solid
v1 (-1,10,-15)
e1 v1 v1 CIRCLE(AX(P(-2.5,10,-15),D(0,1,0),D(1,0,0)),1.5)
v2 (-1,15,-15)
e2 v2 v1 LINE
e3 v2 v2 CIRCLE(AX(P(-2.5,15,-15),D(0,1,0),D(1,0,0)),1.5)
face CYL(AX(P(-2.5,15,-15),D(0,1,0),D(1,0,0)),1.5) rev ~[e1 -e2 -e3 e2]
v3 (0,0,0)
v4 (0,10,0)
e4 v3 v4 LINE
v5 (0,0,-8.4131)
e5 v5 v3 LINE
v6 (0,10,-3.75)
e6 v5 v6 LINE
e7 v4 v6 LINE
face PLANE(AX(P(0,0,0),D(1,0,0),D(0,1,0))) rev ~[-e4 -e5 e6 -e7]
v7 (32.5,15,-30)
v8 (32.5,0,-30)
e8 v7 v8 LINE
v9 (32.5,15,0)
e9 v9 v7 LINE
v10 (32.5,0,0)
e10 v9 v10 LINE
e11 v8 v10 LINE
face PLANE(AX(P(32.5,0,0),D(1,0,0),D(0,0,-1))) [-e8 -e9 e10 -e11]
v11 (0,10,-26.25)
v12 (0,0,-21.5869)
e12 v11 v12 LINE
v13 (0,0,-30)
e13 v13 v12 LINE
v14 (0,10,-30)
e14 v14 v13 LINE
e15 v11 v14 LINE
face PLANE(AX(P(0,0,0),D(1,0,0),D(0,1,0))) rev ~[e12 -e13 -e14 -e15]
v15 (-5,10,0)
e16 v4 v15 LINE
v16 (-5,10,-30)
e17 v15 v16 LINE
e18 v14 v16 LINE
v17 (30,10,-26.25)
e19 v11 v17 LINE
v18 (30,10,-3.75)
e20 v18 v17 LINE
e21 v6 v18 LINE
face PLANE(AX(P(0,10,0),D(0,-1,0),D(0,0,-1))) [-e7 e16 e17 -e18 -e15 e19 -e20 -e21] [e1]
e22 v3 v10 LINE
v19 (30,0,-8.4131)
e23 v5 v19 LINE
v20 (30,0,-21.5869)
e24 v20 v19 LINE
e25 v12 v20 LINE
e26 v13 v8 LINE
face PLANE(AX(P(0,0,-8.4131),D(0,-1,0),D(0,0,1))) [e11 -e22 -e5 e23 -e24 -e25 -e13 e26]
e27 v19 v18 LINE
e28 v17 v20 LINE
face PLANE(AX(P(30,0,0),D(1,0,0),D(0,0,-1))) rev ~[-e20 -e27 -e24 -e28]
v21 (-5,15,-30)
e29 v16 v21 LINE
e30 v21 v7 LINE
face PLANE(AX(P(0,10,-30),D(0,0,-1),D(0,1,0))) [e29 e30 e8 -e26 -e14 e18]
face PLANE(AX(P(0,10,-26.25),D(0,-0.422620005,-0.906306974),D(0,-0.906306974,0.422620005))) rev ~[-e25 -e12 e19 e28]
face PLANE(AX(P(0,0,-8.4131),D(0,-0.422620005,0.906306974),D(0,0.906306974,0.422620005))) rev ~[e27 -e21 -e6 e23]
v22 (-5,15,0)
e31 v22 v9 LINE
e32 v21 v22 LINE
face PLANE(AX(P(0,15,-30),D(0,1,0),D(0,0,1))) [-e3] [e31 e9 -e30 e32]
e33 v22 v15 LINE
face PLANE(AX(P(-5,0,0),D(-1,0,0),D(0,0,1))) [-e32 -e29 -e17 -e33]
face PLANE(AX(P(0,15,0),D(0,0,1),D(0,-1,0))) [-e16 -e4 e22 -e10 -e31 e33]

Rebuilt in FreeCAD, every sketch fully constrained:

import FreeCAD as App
import Part
import Sketcher
from FreeCAD import Vector
Q = App.Units.Quantity


def add_polygon(sketch, points):
    """Adds a closed chain of lines whose ends are joined by coincident constraints."""
    first, n = sketch.GeometryCount, len(points)
    for a, b in zip(points, points[1:] + points[:1]):
        sketch.addGeometry(Part.LineSegment(App.Vector(*a, 0), App.Vector(*b, 0)), False)
    for i in range(n):
        sketch.addConstraint(Sketcher.Constraint("Coincident", first + i, 2, first + (i + 1) % n, 1))

doc = App.newDocument("Part")
body = doc.addObject("PartDesign::Body", "Body")

sketch1 = body.newObject("Sketcher::SketchObject", "Sketch")
sketch1.AttachmentSupport = (doc.getObject("YZ_Plane"), [""])
sketch1.MapMode = "FlatFace"
add_polygon(sketch1, [(15, 0), (0, 0), (0, -8.4131), (10, -3.75), (10, -26.25), (0, -21.5869), (0, -30), (15, -30)])
sketch1.addConstraint(Sketcher.Constraint("Horizontal", 0))
sketch1.addConstraint(Sketcher.Constraint("Vertical", 1))
sketch1.addConstraint(Sketcher.Constraint("Vertical", 3))
sketch1.addConstraint(Sketcher.Constraint("Vertical", 5))
sketch1.addConstraint(Sketcher.Constraint("Horizontal", 6))
sketch1.addConstraint(Sketcher.Constraint("Vertical", 7))
sketch1.addConstraint(Sketcher.Constraint("Coincident", 0, 2, -1, 1))
sketch1.addConstraint(Sketcher.Constraint("PointOnObject", 4, 2, -2))
sketch1.addConstraint(Sketcher.Constraint("Equal", 1, 5))
sketch1.addConstraint(Sketcher.Constraint("Equal", 2, 4))
sketch1.addConstraint(Sketcher.Constraint("DistanceX", 0, 2, 0, 1, Q("15 mm")))
sketch1.addConstraint(Sketcher.Constraint("DistanceY", 7, 1, 7, 2, Q("30 mm")))
sketch1.addConstraint(Sketcher.Constraint("DistanceY", 3, 2, 3, 1, Q("22.5 mm")))
sketch1.addConstraint(Sketcher.Constraint("DistanceX", -1, 1, 2, 2, Q("10 mm")))
sketch1.addConstraint(Sketcher.Constraint("Angle", 2, Q("25 deg")))
pad1 = body.newObject("PartDesign::Pad", "Pad")
pad1.Profile = sketch1
pad1.Length = 30

sketch2 = body.newObject("Sketcher::SketchObject", "Sketch001")
sketch2.AttachmentSupport = (doc.getObject("YZ_Plane"), [""])
sketch2.MapMode = "FlatFace"
sketch2.AttachmentOffset = App.Placement(Vector(0, 0, 30), App.Rotation())
add_polygon(sketch2, [(15, -30), (15, 0), (0, 0), (0, -30)])
sketch2.addConstraint(Sketcher.Constraint("Vertical", 0))
sketch2.addConstraint(Sketcher.Constraint("Horizontal", 1))
sketch2.addConstraint(Sketcher.Constraint("Vertical", 2))
sketch2.addConstraint(Sketcher.Constraint("Horizontal", 3))
sketch2.addConstraint(Sketcher.Constraint("Coincident", 1, 2, -1, 1))
sketch2.addConstraint(Sketcher.Constraint("DistanceX", 1, 2, 1, 1, Q("15 mm")))
sketch2.addConstraint(Sketcher.Constraint("DistanceY", 0, 1, 0, 2, Q("30 mm")))
pad2 = body.newObject("PartDesign::Pad", "Pad001")
pad2.Profile = sketch2
pad2.Length = 2.5

sketch3 = body.newObject("Sketcher::SketchObject", "Sketch002")
sketch3.AttachmentSupport = (doc.getObject("YZ_Plane"), [""])
sketch3.MapMode = "FlatFace"
add_polygon(sketch3, [(15, -30), (10, -30), (10, 0), (15, 0)])
sketch3.addConstraint(Sketcher.Constraint("Horizontal", 0))
sketch3.addConstraint(Sketcher.Constraint("Vertical", 1))
sketch3.addConstraint(Sketcher.Constraint("Horizontal", 2))
sketch3.addConstraint(Sketcher.Constraint("Vertical", 3))
sketch3.addConstraint(Sketcher.Constraint("PointOnObject", 1, 2, -1))
sketch3.addConstraint(Sketcher.Constraint("DistanceX", 0, 2, 0, 1, Q("5 mm")))
sketch3.addConstraint(Sketcher.Constraint("DistanceY", 1, 1, 1, 2, Q("30 mm")))
sketch3.addConstraint(Sketcher.Constraint("DistanceX", -1, 1, 0, 2, Q("10 mm")))
pad3 = body.newObject("PartDesign::Pad", "Pad002")
pad3.Profile = sketch3
pad3.Length = 5
pad3.Reversed = True

sketch4 = body.newObject("Sketcher::SketchObject", "Sketch003")
sketch4.AttachmentSupport = (doc.getObject("XZ_Plane"), [""])
sketch4.MapMode = "FlatFace"
sketch4.AttachmentOffset = App.Placement(Vector(0, 0, -15), App.Rotation())
sketch4.addGeometry(Part.Circle(Vector(-2.5, -15, 0), Vector(0, 0, 1), 1.5), False)
sketch4.addConstraint(Sketcher.Constraint("Diameter", 0, Q("3 mm")))
sketch4.addConstraint(Sketcher.Constraint("DistanceY", 0, 3, -1, 1, Q("15 mm")))
sketch4.addConstraint(Sketcher.Constraint("DistanceX", 0, 3, -1, 1, Q("2.5 mm")))
pocket1 = body.newObject("PartDesign::Pocket", "Pocket")
pocket1.Profile = sketch4
pocket1.Type = "ThroughAll"
pocket1.Reversed = True

doc.recompute()
